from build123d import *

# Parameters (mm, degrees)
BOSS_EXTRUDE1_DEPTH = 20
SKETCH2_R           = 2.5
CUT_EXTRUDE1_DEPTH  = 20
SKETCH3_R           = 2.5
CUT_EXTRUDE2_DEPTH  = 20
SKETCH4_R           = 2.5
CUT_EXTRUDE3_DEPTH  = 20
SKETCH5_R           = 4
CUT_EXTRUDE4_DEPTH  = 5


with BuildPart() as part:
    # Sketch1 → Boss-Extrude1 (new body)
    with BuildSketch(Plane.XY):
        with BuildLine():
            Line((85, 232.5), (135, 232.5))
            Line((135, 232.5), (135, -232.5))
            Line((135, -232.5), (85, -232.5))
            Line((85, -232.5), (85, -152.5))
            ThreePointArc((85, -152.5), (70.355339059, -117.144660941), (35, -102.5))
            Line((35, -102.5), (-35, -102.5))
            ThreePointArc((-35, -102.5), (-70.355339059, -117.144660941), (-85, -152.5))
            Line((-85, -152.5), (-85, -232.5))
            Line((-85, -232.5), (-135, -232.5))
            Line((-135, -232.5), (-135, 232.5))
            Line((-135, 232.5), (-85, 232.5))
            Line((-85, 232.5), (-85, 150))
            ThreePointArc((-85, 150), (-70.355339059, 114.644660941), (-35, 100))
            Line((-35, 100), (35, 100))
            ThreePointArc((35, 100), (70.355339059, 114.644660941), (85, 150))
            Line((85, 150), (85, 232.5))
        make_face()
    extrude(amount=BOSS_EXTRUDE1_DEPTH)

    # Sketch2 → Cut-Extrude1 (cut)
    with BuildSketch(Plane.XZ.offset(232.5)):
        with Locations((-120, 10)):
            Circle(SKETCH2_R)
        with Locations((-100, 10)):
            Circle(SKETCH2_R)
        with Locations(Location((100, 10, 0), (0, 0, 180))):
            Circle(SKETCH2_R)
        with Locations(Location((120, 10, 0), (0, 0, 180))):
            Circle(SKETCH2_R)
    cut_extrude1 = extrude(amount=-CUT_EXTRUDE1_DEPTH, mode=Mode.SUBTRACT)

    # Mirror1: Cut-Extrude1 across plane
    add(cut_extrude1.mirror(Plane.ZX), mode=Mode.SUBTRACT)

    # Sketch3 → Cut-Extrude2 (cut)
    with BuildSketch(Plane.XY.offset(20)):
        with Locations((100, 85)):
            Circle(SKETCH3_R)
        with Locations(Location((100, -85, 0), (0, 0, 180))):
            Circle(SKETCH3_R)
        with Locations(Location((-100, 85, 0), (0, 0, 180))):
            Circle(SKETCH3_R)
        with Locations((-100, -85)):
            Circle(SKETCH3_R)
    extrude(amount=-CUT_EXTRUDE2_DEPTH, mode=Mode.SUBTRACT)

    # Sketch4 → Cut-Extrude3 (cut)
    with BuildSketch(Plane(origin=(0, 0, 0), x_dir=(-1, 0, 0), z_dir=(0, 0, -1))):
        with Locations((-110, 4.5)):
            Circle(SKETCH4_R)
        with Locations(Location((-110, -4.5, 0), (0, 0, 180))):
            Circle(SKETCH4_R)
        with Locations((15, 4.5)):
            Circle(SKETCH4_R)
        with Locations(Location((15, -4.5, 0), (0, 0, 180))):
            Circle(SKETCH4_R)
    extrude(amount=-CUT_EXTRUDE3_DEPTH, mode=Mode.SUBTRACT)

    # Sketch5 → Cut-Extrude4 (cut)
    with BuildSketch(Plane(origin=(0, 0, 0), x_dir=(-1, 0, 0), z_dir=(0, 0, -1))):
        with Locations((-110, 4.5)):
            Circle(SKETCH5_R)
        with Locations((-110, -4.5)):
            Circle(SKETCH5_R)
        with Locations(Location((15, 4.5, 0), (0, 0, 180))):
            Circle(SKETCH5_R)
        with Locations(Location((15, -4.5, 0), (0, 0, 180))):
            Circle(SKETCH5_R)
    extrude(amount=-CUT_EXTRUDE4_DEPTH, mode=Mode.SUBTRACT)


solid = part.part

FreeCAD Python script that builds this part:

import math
import FreeCAD as App
import Part
import Sketcher
from FreeCAD import Vector
Q = App.Units.Quantity

doc = App.newDocument("Part")
body = doc.addObject("PartDesign::Body", "Body")

# Sketch on XY plane
sketch1 = doc.addObject("Sketcher::SketchObject", "Sketch")
body.addObject(sketch1)
sketch1.AttachmentSupport = (doc.XY_Plane, [""])
sketch1.MapMode = "FlatFace"
sketch1.addGeometry(Part.LineSegment(Vector(135, 232.5, 0), Vector(85, 232.5, 0)), False)
sketch1.addGeometry(Part.LineSegment(Vector(85, 232.5, 0), Vector(85, 150, 0)), False)
sketch1.addGeometry(Part.ArcOfCircle(Part.Circle(Vector(35, 150, 0), Vector(0, 0, 1), 50), math.radians(-90), math.radians(0)), False)
sketch1.addGeometry(Part.LineSegment(Vector(35, 100, 0), Vector(-35, 100, 0)), False)
sketch1.addGeometry(Part.ArcOfCircle(Part.Circle(Vector(-35, 150, 0), Vector(0, 0, 1), 50), math.radians(-180), math.radians(-90)), False)
sketch1.addGeometry(Part.LineSegment(Vector(-85, 150, 0), Vector(-85, 232.5, 0)), False)
sketch1.addGeometry(Part.LineSegment(Vector(-85, 232.5, 0), Vector(-135, 232.5, 0)), False)
sketch1.addGeometry(Part.LineSegment(Vector(-135, 232.5, 0), Vector(-135, -232.5, 0)), False)
sketch1.addGeometry(Part.LineSegment(Vector(-135, -232.5, 0), Vector(-85, -232.5, 0)), False)
sketch1.addGeometry(Part.LineSegment(Vector(-85, -232.5, 0), Vector(-85, -152.5, 0)), False)
sketch1.addGeometry(Part.ArcOfCircle(Part.Circle(Vector(-35, -152.5, 0), Vector(0, 0, 1), 50), math.radians(90), math.radians(180)), False)
sketch1.addGeometry(Part.LineSegment(Vector(-35, -102.5, 0), Vector(35, -102.5, 0)), False)
sketch1.addGeometry(Part.ArcOfCircle(Part.Circle(Vector(35, -152.5, 0), Vector(0, 0, 1), 50), math.radians(0), math.radians(90)), False)
sketch1.addGeometry(Part.LineSegment(Vector(85, -152.5, 0), Vector(85, -232.5, 0)), False)
sketch1.addGeometry(Part.LineSegment(Vector(85, -232.5, 0), Vector(135, -232.5, 0)), False)
sketch1.addGeometry(Part.LineSegment(Vector(135, -232.5, 0), Vector(135, 232.5, 0)), False)
sketch1.addConstraint(Sketcher.Constraint("Coincident", 0, 2, 1, 1))
sketch1.addConstraint(Sketcher.Constraint("Tangent", 1, 2, 2, 2))
sketch1.addConstraint(Sketcher.Constraint("Tangent", 2, 1, 3, 1))
sketch1.addConstraint(Sketcher.Constraint("Tangent", 3, 2, 4, 2))
sketch1.addConstraint(Sketcher.Constraint("Tangent", 4, 1, 5, 1))
sketch1.addConstraint(Sketcher.Constraint("Coincident", 5, 2, 6, 1))
sketch1.addConstraint(Sketcher.Constraint("Coincident", 6, 2, 7, 1))
sketch1.addConstraint(Sketcher.Constraint("Coincident", 7, 2, 8, 1))
sketch1.addConstraint(Sketcher.Constraint("Coincident", 8, 2, 9, 1))
sketch1.addConstraint(Sketcher.Constraint("Tangent", 9, 2, 10, 2))
sketch1.addConstraint(Sketcher.Constraint("Tangent", 10, 1, 11, 1))
sketch1.addConstraint(Sketcher.Constraint("Tangent", 11, 2, 12, 2))
sketch1.addConstraint(Sketcher.Constraint("Tangent", 12, 1, 13, 1))
sketch1.addConstraint(Sketcher.Constraint("Coincident", 13, 2, 14, 1))
sketch1.addConstraint(Sketcher.Constraint("Coincident", 14, 2, 15, 1))
sketch1.addConstraint(Sketcher.Constraint("Coincident", 15, 2, 0, 1))
sketch1.addConstraint(Sketcher.Constraint("Horizontal", 0))
sketch1.addConstraint(Sketcher.Constraint("Vertical", 1))
sketch1.addConstraint(Sketcher.Constraint("Horizontal", 3))
sketch1.addConstraint(Sketcher.Constraint("Vertical", 5))
sketch1.addConstraint(Sketcher.Constraint("Horizontal", 6))
sketch1.addConstraint(Sketcher.Constraint("Vertical", 7))
sketch1.addConstraint(Sketcher.Constraint("Horizontal", 8))
sketch1.addConstraint(Sketcher.Constraint("Vertical", 9))
sketch1.addConstraint(Sketcher.Constraint("Horizontal", 11))
sketch1.addConstraint(Sketcher.Constraint("Vertical", 13))
sketch1.addConstraint(Sketcher.Constraint("Horizontal", 14))
sketch1.addConstraint(Sketcher.Constraint("Vertical", 15))
sketch1.addConstraint(Sketcher.Constraint("Equal", 2, 4))
sketch1.addConstraint(Sketcher.Constraint("Equal", 4, 10))
sketch1.addConstraint(Sketcher.Constraint("Equal", 10, 12))
sketch1.addConstraint(Sketcher.Constraint("Symmetric", 0, 2, 8, 2, -1, 1))
sketch1.addConstraint(Sketcher.Constraint("Symmetric", 5, 2, 13, 2, -1, 1))
sketch1.addConstraint(Sketcher.Constraint("Symmetric", 0, 2, 5, 2, -2))
sketch1.addConstraint(Sketcher.Constraint("Equal", 0, 6))
sketch1.addConstraint(Sketcher.Constraint("Radius", 2, Q("50 mm")))
sketch1.addConstraint(Sketcher.Constraint("DistanceX", 0, 2, 0, 1, Q("50 mm")))
sketch1.addConstraint(Sketcher.Constraint("DistanceX", 3, 2, 3, 1, Q("70 mm")))
sketch1.addConstraint(Sketcher.Constraint("DistanceY", 7, 2, 7, 1, Q("465 mm")))
sketch1.addConstraint(Sketcher.Constraint("DistanceY", 9, 1, 9, 2, Q("80 mm")))
sketch1.addConstraint(Sketcher.Constraint("DistanceY", 1, 2, 1, 1, Q("82.5 mm")))
pad1 = doc.addObject("PartDesign::Pad", "Pad")
body.addObject(pad1)
pad1.Profile = sketch1
pad1.Length = 20

# Sketch on XZ plane
sketch2 = doc.addObject("Sketcher::SketchObject", "Sketch001")
body.addObject(sketch2)
sketch2.AttachmentSupport = (doc.XZ_Plane, [""])
sketch2.MapMode = "FlatFace"
sketch2.AttachmentOffset = App.Placement(Vector(0, 0, 232.5), App.Rotation())
sketch2.addGeometry(Part.Circle(Vector(-120, 10, 0), Vector(0, 0, 1), 2.5), False)
sketch2.addGeometry(Part.Circle(Vector(-100, 10, 0), Vector(0, 0, 1), 2.5), False)
sketch2.addGeometry(Part.Circle(Vector(100, 10, 0), Vector(0, 0, 1), 2.5), False)
sketch2.addGeometry(Part.Circle(Vector(120, 10, 0), Vector(0, 0, 1), 2.5), False)
sketch2.addConstraint(Sketcher.Constraint("Equal", 0, 1))
sketch2.addConstraint(Sketcher.Constraint("Equal", 1, 2))
sketch2.addConstraint(Sketcher.Constraint("Equal", 2, 3))
sketch2.addConstraint(Sketcher.Constraint("Symmetric", 1, 3, 2, 3, -2))
sketch2.addConstraint(Sketcher.Constraint("Symmetric", 0, 3, 3, 3, -2))
sketch2.addConstraint(Sketcher.Constraint("Horizontal", 0, 3, 1, 3))
sketch2.addConstraint(Sketcher.Constraint("Diameter", 0, Q("5 mm")))
sketch2.addConstraint(Sketcher.Constraint("DistanceX", 0, 3, -1, 1, Q("120 mm")))
sketch2.addConstraint(Sketcher.Constraint("DistanceY", -1, 1, 0, 3, Q("10 mm")))
sketch2.addConstraint(Sketcher.Constraint("DistanceX", 1, 3, -1, 1, Q("100 mm")))
pocket1 = doc.addObject("PartDesign::Pocket", "Pocket")
body.addObject(pocket1)
pocket1.Profile = sketch2
pocket1.Length = 20
doc.recompute()

mirrored = doc.addObject("PartDesign::Mirrored", "Mirrored")
body.addObject(mirrored)
mirrored.Originals = [pocket1]
mirrored.MirrorPlane = (doc.XZ_Plane, [""])
body.Tip = mirrored

# Sketch on XY plane
sketch3 = doc.addObject("Sketcher::SketchObject", "Sketch002")
body.addObject(sketch3)
sketch3.AttachmentSupport = (doc.XY_Plane, [""])
sketch3.MapMode = "FlatFace"
sketch3.AttachmentOffset = App.Placement(Vector(0, 0, 20), App.Rotation())
sketch3.addGeometry(Part.Circle(Vector(100, 85, 0), Vector(0, 0, 1), 2.5), False)
sketch3.addGeometry(Part.Circle(Vector(100, -85, 0), Vector(0, 0, 1), 2.5), False)
sketch3.addGeometry(Part.Circle(Vector(-100, 85, 0), Vector(0, 0, 1), 2.5), False)
sketch3.addGeometry(Part.Circle(Vector(-100, -85, 0), Vector(0, 0, 1), 2.5), False)
sketch3.addConstraint(Sketcher.Constraint("Equal", 0, 1))
sketch3.addConstraint(Sketcher.Constraint("Equal", 1, 2))
sketch3.addConstraint(Sketcher.Constraint("Equal", 2, 3))
sketch3.addConstraint(Sketcher.Constraint("Symmetric", 1, 3, 2, 3, -1, 1))
sketch3.addConstraint(Sketcher.Constraint("Symmetric", 0, 3, 3, 3, -1, 1))
sketch3.addConstraint(Sketcher.Constraint("Symmetric", 0, 3, 2, 3, -2))
sketch3.addConstraint(Sketcher.Constraint("Diameter", 0, Q("5 mm")))
sketch3.addConstraint(Sketcher.Constraint("DistanceX", -1, 1, 0, 3, Q("100 mm")))
sketch3.addConstraint(Sketcher.Constraint("DistanceY", -1, 1, 0, 3, Q("85 mm")))
pocket2 = doc.addObject("PartDesign::Pocket", "Pocket001")
body.addObject(pocket2)
pocket2.Profile = sketch3
pocket2.Length = 20

# Sketch on XY plane
sketch4 = doc.addObject("Sketcher::SketchObject", "Sketch003")
body.addObject(sketch4)
sketch4.AttachmentSupport = (doc.XY_Plane, [""])
sketch4.MapMode = "FlatFace"
sketch4.addGeometry(Part.Circle(Vector(110, 4.5, 0), Vector(0, 0, 1), 2.5), False)
sketch4.addGeometry(Part.Circle(Vector(110, -4.5, 0), Vector(0, 0, 1), 2.5), False)
sketch4.addGeometry(Part.Circle(Vector(-15, 4.5, 0), Vector(0, 0, 1), 2.5), False)
sketch4.addGeometry(Part.Circle(Vector(-15, -4.5, 0), Vector(0, 0, 1), 2.5), False)
sketch4.addConstraint(Sketcher.Constraint("Equal", 0, 1))
sketch4.addConstraint(Sketcher.Constraint("Equal", 1, 2))
sketch4.addConstraint(Sketcher.Constraint("Equal", 2, 3))
sketch4.addConstraint(Sketcher.Constraint("Symmetric", 0, 3, 1, 3, -1))
sketch4.addConstraint(Sketcher.Constraint("Symmetric", 2, 3, 3, 3, -1))
sketch4.addConstraint(Sketcher.Constraint("Horizontal", 0, 3, 2, 3))
sketch4.addConstraint(Sketcher.Constraint("Diameter", 0, Q("5 mm")))
sketch4.addConstraint(Sketcher.Constraint("DistanceX", -1, 1, 0, 3, Q("110 mm")))
sketch4.addConstraint(Sketcher.Constraint("DistanceX", 2, 3, -1, 1, Q("15 mm")))
sketch4.addConstraint(Sketcher.Constraint("DistanceY", 1, 3, 0, 3, Q("9 mm")))
pocket3 = doc.addObject("PartDesign::Pocket", "Pocket002")
body.addObject(pocket3)
pocket3.Profile = sketch4
pocket3.Length = 20
pocket3.Reversed = True

# Sketch on XY plane
sketch5 = doc.addObject("Sketcher::SketchObject", "Sketch004")
body.addObject(sketch5)
sketch5.AttachmentSupport = (doc.XY_Plane, [""])
sketch5.MapMode = "FlatFace"
sketch5.addGeometry(Part.Circle(Vector(110, 4.5, 0), Vector(0, 0, 1), 4), False)
sketch5.addGeometry(Part.Circle(Vector(110, -4.5, 0), Vector(0, 0, 1), 4), False)
sketch5.addGeometry(Part.Circle(Vector(-15, 4.5, 0), Vector(0, 0, 1), 4), False)
sketch5.addGeometry(Part.Circle(Vector(-15, -4.5, 0), Vector(0, 0, 1), 4), False)
sketch5.addConstraint(Sketcher.Constraint("Equal", 0, 1))
sketch5.addConstraint(Sketcher.Constraint("Equal", 1, 2))
sketch5.addConstraint(Sketcher.Constraint("Equal", 2, 3))
sketch5.addConstraint(Sketcher.Constraint("Symmetric", 0, 3, 1, 3, -1))
sketch5.addConstraint(Sketcher.Constraint("Symmetric", 2, 3, 3, 3, -1))
sketch5.addConstraint(Sketcher.Constraint("Horizontal", 0, 3, 2, 3))
sketch5.addConstraint(Sketcher.Constraint("Diameter", 0, Q("8 mm")))
sketch5.addConstraint(Sketcher.Constraint("DistanceX", -1, 1, 0, 3, Q("110 mm")))
sketch5.addConstraint(Sketcher.Constraint("DistanceX", 2, 3, -1, 1, Q("15 mm")))
sketch5.addConstraint(Sketcher.Constraint("DistanceY", 1, 3, 0, 3, Q("9 mm")))
pocket4 = doc.addObject("PartDesign::Pocket", "Pocket003")
body.addObject(pocket4)
pocket4.Profile = sketch5
pocket4.Length = 5
pocket4.Reversed = True

doc.recompute()
